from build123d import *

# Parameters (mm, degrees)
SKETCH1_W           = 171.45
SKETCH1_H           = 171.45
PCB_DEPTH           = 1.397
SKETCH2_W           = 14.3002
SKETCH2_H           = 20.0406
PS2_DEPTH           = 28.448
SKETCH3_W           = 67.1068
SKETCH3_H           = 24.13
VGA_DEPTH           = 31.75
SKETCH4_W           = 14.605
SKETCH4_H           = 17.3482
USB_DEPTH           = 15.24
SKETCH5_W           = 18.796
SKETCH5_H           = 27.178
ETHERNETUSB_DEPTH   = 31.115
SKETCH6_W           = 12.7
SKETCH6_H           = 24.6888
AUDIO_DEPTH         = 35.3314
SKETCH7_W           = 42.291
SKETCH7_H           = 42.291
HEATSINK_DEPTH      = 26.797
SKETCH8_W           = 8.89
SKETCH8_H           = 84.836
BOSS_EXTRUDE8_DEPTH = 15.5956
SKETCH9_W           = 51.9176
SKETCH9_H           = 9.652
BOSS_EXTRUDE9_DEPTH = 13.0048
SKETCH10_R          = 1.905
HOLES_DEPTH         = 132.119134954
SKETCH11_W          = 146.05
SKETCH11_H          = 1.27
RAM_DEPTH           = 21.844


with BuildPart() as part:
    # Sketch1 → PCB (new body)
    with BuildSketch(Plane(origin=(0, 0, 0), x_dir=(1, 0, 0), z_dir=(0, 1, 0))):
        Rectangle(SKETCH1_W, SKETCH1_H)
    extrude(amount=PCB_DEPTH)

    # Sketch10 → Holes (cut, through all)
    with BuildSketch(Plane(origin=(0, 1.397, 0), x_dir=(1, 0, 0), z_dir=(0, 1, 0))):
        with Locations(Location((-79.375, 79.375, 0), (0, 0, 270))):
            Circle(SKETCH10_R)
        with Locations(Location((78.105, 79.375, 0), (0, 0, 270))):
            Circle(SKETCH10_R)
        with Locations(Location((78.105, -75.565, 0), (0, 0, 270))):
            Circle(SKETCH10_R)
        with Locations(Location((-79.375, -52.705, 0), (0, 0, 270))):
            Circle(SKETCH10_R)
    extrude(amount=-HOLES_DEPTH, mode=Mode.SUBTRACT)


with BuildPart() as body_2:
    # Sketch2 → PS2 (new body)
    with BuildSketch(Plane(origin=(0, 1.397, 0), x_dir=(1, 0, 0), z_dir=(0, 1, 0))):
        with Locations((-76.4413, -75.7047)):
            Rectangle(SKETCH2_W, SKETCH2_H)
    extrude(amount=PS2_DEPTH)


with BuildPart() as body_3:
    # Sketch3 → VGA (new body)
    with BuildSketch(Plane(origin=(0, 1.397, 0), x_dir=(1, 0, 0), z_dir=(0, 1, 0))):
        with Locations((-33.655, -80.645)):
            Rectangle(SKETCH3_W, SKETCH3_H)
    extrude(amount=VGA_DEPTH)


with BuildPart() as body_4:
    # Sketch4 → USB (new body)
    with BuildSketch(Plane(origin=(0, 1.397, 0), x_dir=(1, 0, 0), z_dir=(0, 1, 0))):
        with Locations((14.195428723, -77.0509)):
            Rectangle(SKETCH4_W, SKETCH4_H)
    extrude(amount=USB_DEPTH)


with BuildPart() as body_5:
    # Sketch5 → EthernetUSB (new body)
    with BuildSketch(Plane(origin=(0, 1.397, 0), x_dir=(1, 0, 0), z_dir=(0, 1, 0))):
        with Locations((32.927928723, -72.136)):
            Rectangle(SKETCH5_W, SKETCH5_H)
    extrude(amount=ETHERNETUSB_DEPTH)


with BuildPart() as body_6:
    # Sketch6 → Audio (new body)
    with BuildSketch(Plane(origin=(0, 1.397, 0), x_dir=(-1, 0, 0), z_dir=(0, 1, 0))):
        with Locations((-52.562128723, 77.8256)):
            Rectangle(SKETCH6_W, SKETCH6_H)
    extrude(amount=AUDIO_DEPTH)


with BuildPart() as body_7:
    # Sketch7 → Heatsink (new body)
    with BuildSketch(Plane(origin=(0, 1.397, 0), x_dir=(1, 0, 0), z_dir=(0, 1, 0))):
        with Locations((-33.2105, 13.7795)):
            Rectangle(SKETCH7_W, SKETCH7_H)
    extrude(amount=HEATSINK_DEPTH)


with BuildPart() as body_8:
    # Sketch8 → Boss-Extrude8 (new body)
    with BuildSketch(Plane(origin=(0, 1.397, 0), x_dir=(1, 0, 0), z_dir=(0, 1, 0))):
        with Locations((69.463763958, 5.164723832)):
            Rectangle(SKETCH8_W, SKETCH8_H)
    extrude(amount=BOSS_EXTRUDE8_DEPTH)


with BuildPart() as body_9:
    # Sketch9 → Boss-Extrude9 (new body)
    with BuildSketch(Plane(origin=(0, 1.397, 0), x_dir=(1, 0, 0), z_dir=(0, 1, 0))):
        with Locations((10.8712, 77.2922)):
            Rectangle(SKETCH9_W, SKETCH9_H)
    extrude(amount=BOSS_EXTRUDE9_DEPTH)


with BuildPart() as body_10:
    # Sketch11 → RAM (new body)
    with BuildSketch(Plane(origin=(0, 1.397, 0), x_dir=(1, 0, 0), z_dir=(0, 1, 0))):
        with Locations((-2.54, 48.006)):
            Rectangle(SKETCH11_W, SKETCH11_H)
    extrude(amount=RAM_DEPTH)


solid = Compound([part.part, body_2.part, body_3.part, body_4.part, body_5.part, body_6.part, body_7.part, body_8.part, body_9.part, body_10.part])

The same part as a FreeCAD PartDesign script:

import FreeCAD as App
import Part
import Sketcher
from FreeCAD import Vector
Q = App.Units.Quantity


def add_polygon(sketch, points):
    """Adds a closed chain of lines whose ends are joined by coincident constraints."""
    first, n = sketch.GeometryCount, len(points)
    for a, b in zip(points, points[1:] + points[:1]):
        sketch.addGeometry(Part.LineSegment(App.Vector(*a, 0), App.Vector(*b, 0)), False)
    for i in range(n):
        sketch.addConstraint(Sketcher.Constraint("Coincident", first + i, 2, first + (i + 1) % n, 1))

doc = App.newDocument("Part")
body = doc.addObject("PartDesign::Body", "Body")

# Sketch on XZ plane
sketch1 = doc.addObject("Sketcher::SketchObject", "Sketch")
body.addObject(sketch1)
sketch1.AttachmentSupport = (doc.XZ_Plane, [""])
sketch1.MapMode = "FlatFace"
add_polygon(sketch1, [(-85.725, -85.725), (-85.725, 85.725), (85.725, 85.725), (85.725, -85.725)])  # lines 0-3
sketch1.addConstraint(Sketcher.Constraint("Vertical", 0))
sketch1.addConstraint(Sketcher.Constraint("Horizontal", 1))
sketch1.addConstraint(Sketcher.Constraint("Vertical", 2))
sketch1.addConstraint(Sketcher.Constraint("Horizontal", 3))
sketch1.addConstraint(Sketcher.Constraint("Symmetric", 0, 2, 2, 2, -1, 1))
sketch1.addConstraint(Sketcher.Constraint("Equal", 3, 0))
sketch1.addConstraint(Sketcher.Constraint("DistanceX", 1, 1, 1, 2, Q("6.75 in")))
pad1 = doc.addObject("PartDesign::Pad", "Pad")
body.addObject(pad1)
pad1.Profile = sketch1
pad1.Length = Q("0.055 in")
pad1.Reversed = True

# Sketch on XZ plane
sketch2 = doc.addObject("Sketcher::SketchObject", "Sketch001")
body.addObject(sketch2)
sketch2.AttachmentSupport = (doc.XZ_Plane, [""])
sketch2.MapMode = "FlatFace"
sketch2.AttachmentOffset = App.Placement(Vector(0, 0, -0.055 * 25.4), App.Rotation())
sketch2.addGeometry(Part.Circle(Vector(-79.375, -79.375, 0), Vector(0, 0, 1), 1.905), False)
sketch2.addGeometry(Part.Circle(Vector(78.105, -79.375, 0), Vector(0, 0, 1), 1.905), False)
sketch2.addGeometry(Part.Circle(Vector(78.105, 75.565, 0), Vector(0, 0, 1), 1.905), False)
sketch2.addGeometry(Part.Circle(Vector(-79.375, 52.705, 0), Vector(0, 0, 1), 1.905), False)
sketch2.addConstraint(Sketcher.Constraint("Equal", 0, 1))
sketch2.addConstraint(Sketcher.Constraint("Equal", 1, 2))
sketch2.addConstraint(Sketcher.Constraint("Equal", 2, 3))
sketch2.addConstraint(Sketcher.Constraint("Horizontal", 0, 3, 1, 3))
sketch2.addConstraint(Sketcher.Constraint("Vertical", 1, 3, 2, 3))
sketch2.addConstraint(Sketcher.Constraint("Vertical", 0, 3, 3, 3))
sketch2.addConstraint(Sketcher.Constraint("Diameter", 0, Q("0.15 in")))
sketch2.addConstraint(Sketcher.Constraint("DistanceX", 0, 3, 1, 3, Q("6.2 in")))
sketch2.addConstraint(Sketcher.Constraint("DistanceY", 1, 3, 2, 3, Q("6.1 in")))
sketch2.addConstraint(Sketcher.Constraint("DistanceY", 0, 3, 3, 3, Q("5.2 in")))
sketch2.addConstraint(Sketcher.Constraint("DistanceX", 0, 3, -1, 1, Q("3.125 in")))
sketch2.addConstraint(Sketcher.Constraint("DistanceY", 0, 3, -1, 1, Q("3.125 in")))
pocket1 = doc.addObject("PartDesign::Pocket", "Pocket")
body.addObject(pocket1)
pocket1.Profile = sketch2
pocket1.Type = "ThroughAll"
pocket1.Reversed = True
body2 = doc.addObject("PartDesign::Body", "Body001")

# Sketch on XZ plane
sketch3 = doc.addObject("Sketcher::SketchObject", "Sketch002")
body2.addObject(sketch3)
sketch3.AttachmentSupport = (doc.getObject("XZ_Plane001"), [""])
sketch3.MapMode = "FlatFace"
sketch3.AttachmentOffset = App.Placement(Vector(0, 0, -0.055 * 25.4), App.Rotation())
add_polygon(sketch3, [(-83.5914, 65.6844), (-83.5914, 85.725), (-69.2912, 85.725), (-69.2912, 65.6844)])  # lines 0-3
sketch3.addConstraint(Sketcher.Constraint("Vertical", 0))
sketch3.addConstraint(Sketcher.Constraint("Horizontal", 1))
sketch3.addConstraint(Sketcher.Constraint("Vertical", 2))
sketch3.addConstraint(Sketcher.Constraint("Horizontal", 3))
sketch3.addConstraint(Sketcher.Constraint("DistanceX", 1, 1, 1, 2, Q("0.563 in")))
sketch3.addConstraint(Sketcher.Constraint("DistanceY", 0, 1, 0, 2, Q("0.789 in")))
sketch3.addConstraint(Sketcher.Constraint("DistanceX", 0, 2, -1, 1, Q("3.291 in")))
sketch3.addConstraint(Sketcher.Constraint("DistanceY", -1, 1, 0, 2, Q("3.375 in")))
pad2 = doc.addObject("PartDesign::Pad", "Pad001")
body2.addObject(pad2)
pad2.Profile = sketch3
pad2.Length = Q("1.12 in")
pad2.Reversed = True
body3 = doc.addObject("PartDesign::Body", "Body002")

# Sketch on XZ plane
sketch4 = doc.addObject("Sketcher::SketchObject", "Sketch003")
body3.addObject(sketch4)
sketch4.AttachmentSupport = (doc.getObject("XZ_Plane002"), [""])
sketch4.MapMode = "FlatFace"
sketch4.AttachmentOffset = App.Placement(Vector(0, 0, -0.055 * 25.4), App.Rotation())
add_polygon(sketch4, [(-67.2084, 68.58), (-67.2084, 92.71), (-0.1016, 92.71), (-0.1016, 68.58)])  # lines 0-3
sketch4.addConstraint(Sketcher.Constraint("Vertical", 0))
sketch4.addConstraint(Sketcher.Constraint("Horizontal", 1))
sketch4.addConstraint(Sketcher.Constraint("Vertical", 2))
sketch4.addConstraint(Sketcher.Constraint("Horizontal", 3))
sketch4.addConstraint(Sketcher.Constraint("DistanceY", 0, 1, 0, 2, Q("0.95 in")))
sketch4.addConstraint(Sketcher.Constraint("DistanceY", -1, 1, 2, 2, Q("2.7 in")))
sketch4.addConstraint(Sketcher.Constraint("DistanceX", 1, 1, 1, 2, Q("2.642 in")))
sketch4.addConstraint(Sketcher.Constraint("DistanceX", 0, 2, -1, 1, Q("2.646 in")))
pad3 = doc.addObject("PartDesign::Pad", "Pad002")
body3.addObject(pad3)
pad3.Profile = sketch4
pad3.Length = Q("1.25 in")
pad3.Reversed = True
body4 = doc.addObject("PartDesign::Body", "Body003")

# Sketch on XZ plane
sketch5 = doc.addObject("Sketcher::SketchObject", "Sketch004")
body4.addObject(sketch5)
sketch5.AttachmentSupport = (doc.getObject("XZ_Plane003"), [""])
sketch5.MapMode = "FlatFace"
sketch5.AttachmentOffset = App.Placement(Vector(0, 0, -0.055 * 25.4), App.Rotation())
add_polygon(sketch5, [(6.892929, 68.3768), (6.892929, 85.725), (21.497929, 85.725), (21.497929, 68.3768)])  # lines 0-3
sketch5.addConstraint(Sketcher.Constraint("Vertical", 0))
sketch5.addConstraint(Sketcher.Constraint("Horizontal", 1))
sketch5.addConstraint(Sketcher.Constraint("Vertical", 2))
sketch5.addConstraint(Sketcher.Constraint("Horizontal", 3))
sketch5.addConstraint(Sketcher.Constraint("DistanceX", 1, 1, 1, 2, Q("0.575 in")))
sketch5.addConstraint(Sketcher.Constraint("DistanceY", 0, 1, 0, 2, Q("0.683 in")))
sketch5.addConstraint(Sketcher.Constraint("DistanceY", -1, 1, 0, 2, Q("3.375 in")))
sketch5.addConstraint(Sketcher.Constraint("DistanceX", -1, 1, 0, 2, 6.892929))
pad4 = doc.addObject("PartDesign::Pad", "Pad003")
body4.addObject(pad4)
pad4.Profile = sketch5
pad4.Length = Q("0.6 in")
pad4.Reversed = True
body5 = doc.addObject("PartDesign::Body", "Body004")

# Sketch on XZ plane
sketch6 = doc.addObject("Sketcher::SketchObject", "Sketch005")
body5.addObject(sketch6)
sketch6.AttachmentSupport = (doc.getObject("XZ_Plane004"), [""])
sketch6.MapMode = "FlatFace"
sketch6.AttachmentOffset = App.Placement(Vector(0, 0, -0.055 * 25.4), App.Rotation())
add_polygon(sketch6, [(23.529929, 58.547), (23.529929, 85.725), (42.325929, 85.725), (42.325929, 58.547)])  # lines 0-3
sketch6.addConstraint(Sketcher.Constraint("Vertical", 0))
sketch6.addConstraint(Sketcher.Constraint("Horizontal", 1))
sketch6.addConstraint(Sketcher.Constraint("Vertical", 2))
sketch6.addConstraint(Sketcher.Constraint("Horizontal", 3))
sketch6.addConstraint(Sketcher.Constraint("DistanceX", 1, 1, 1, 2, Q("0.74 in")))
sketch6.addConstraint(Sketcher.Constraint("DistanceY", 0, 1, 0, 2, Q("1.07 in")))
sketch6.addConstraint(Sketcher.Constraint("DistanceY", -1, 1, 0, 2, Q("3.375 in")))
sketch6.addConstraint(Sketcher.Constraint("DistanceX", -1, 1, 0, 2, 23.529929))
pad5 = doc.addObject("PartDesign::Pad", "Pad004")
body5.addObject(pad5)
pad5.Profile = sketch6
pad5.Length = Q("1.225 in")
pad5.Reversed = True
body6 = doc.addObject("PartDesign::Body", "Body005")

# Sketch on XZ plane
sketch7 = doc.addObject("Sketcher::SketchObject", "Sketch006")
body6.addObject(sketch7)
sketch7.AttachmentSupport = (doc.getObject("XZ_Plane005"), [""])
sketch7.MapMode = "FlatFace"
sketch7.AttachmentOffset = App.Placement(Vector(0, 0, -0.055 * 25.4), App.Rotation())
add_polygon(sketch7, [(58.912129, 90.17), (58.912129, 65.4812), (46.212129, 65.4812), (46.212129, 90.17)])  # lines 0-3
sketch7.addConstraint(Sketcher.Constraint("Vertical", 0))
sketch7.addConstraint(Sketcher.Constraint("Horizontal", 1))
sketch7.addConstraint(Sketcher.Constraint("Vertical", 2))
sketch7.addConstraint(Sketcher.Constraint("Horizontal", 3))
sketch7.addConstraint(Sketcher.Constraint("DistanceX", 1, 2, 1, 1, Q("0.5 in")))
sketch7.addConstraint(Sketcher.Constraint("DistanceY", 0, 2, 0, 1, Q("0.972 in")))
sketch7.addConstraint(Sketcher.Constraint("DistanceY", -1, 1, 2, 2, Q("3.55 in")))
sketch7.addConstraint(Sketcher.Constraint("DistanceX", -1, 1, 0, 2, 58.912129))
pad6 = doc.addObject("PartDesign::Pad", "Pad005")
body6.addObject(pad6)
pad6.Profile = sketch7
pad6.Length = Q("1.391 in")
pad6.Reversed = True
body7 = doc.addObject("PartDesign::Body", "Body006")

# Sketch on XZ plane
sketch8 = doc.addObject("Sketcher::SketchObject", "Sketch007")
body7.addObject(sketch8)
sketch8.AttachmentSupport = (doc.getObject("XZ_Plane006"), [""])
sketch8.MapMode = "FlatFace"
sketch8.AttachmentOffset = App.Placement(Vector(0, 0, -0.055 * 25.4), App.Rotation())
add_polygon(sketch8, [(-54.356, -34.925), (-54.356, 7.366), (-12.065, 7.366), (-12.065, -34.925)])  # lines 0-3
sketch8.addConstraint(Sketcher.Constraint("Vertical", 0))
sketch8.addConstraint(Sketcher.Constraint("Horizontal", 1))
sketch8.addConstraint(Sketcher.Constraint("Vertical", 2))
sketch8.addConstraint(Sketcher.Constraint("Horizontal", 3))
sketch8.addConstraint(Sketcher.Constraint("Equal", 3, 0))
sketch8.addConstraint(Sketcher.Constraint("DistanceX", 1, 1, 1, 2, Q("1.665 in")))
sketch8.addConstraint(Sketcher.Constraint("DistanceX", 0, 2, -1, 1, Q("2.14 in")))
sketch8.addConstraint(Sketcher.Constraint("DistanceY", -1, 1, 0, 2, Q("0.29 in")))
pad7 = doc.addObject("PartDesign::Pad", "Pad006")
body7.addObject(pad7)
pad7.Profile = sketch8
pad7.Length = Q("1.055 in")
pad7.Reversed = True
body8 = doc.addObject("PartDesign::Body", "Body007")

# Sketch on XZ plane
sketch9 = doc.addObject("Sketcher::SketchObject", "Sketch008")
body8.addObject(sketch9)
sketch9.AttachmentSupport = (doc.getObject("XZ_Plane007"), [""])
sketch9.MapMode = "FlatFace"
sketch9.AttachmentOffset = App.Placement(Vector(0, 0, -0.055 * 25.4), App.Rotation())
add_polygon(sketch9, [(65.018764, -47.582724), (65.018764, 37.253276), (73.908764, 37.253276), (73.908764, -47.582724)])  # lines 0-3
sketch9.addConstraint(Sketcher.Constraint("Vertical", 0))
sketch9.addConstraint(Sketcher.Constraint("Horizontal", 1))
sketch9.addConstraint(Sketcher.Constraint("Vertical", 2))
sketch9.addConstraint(Sketcher.Constraint("Horizontal", 3))
sketch9.addConstraint(Sketcher.Constraint("DistanceX", 1, 1, 1, 2, Q("0.35 in")))
sketch9.addConstraint(Sketcher.Constraint("DistanceY", 0, 1, 0, 2, Q("3.34 in")))
sketch9.addConstraint(Sketcher.Constraint("DistanceX", -1, 1, 0, 2, 65.018764))
sketch9.addConstraint(Sketcher.Constraint("DistanceY", -1, 1, 0, 2, 37.253276))
pad8 = doc.addObject("PartDesign::Pad", "Pad007")
body8.addObject(pad8)
pad8.Profile = sketch9
pad8.Length = Q("0.614 in")
pad8.Reversed = True
body9 = doc.addObject("PartDesign::Body", "Body008")

# Sketch on XZ plane
sketch10 = doc.addObject("Sketcher::SketchObject", "Sketch009")
body9.addObject(sketch10)
sketch10.AttachmentSupport = (doc.getObject("XZ_Plane008"), [""])
sketch10.MapMode = "FlatFace"
sketch10.AttachmentOffset = App.Placement(Vector(0, 0, -0.055 * 25.4), App.Rotation())
add_polygon(sketch10, [(-15.0876, -82.1182), (-15.0876, -72.4662), (36.83, -72.4662), (36.83, -82.1182)])  # lines 0-3
sketch10.addConstraint(Sketcher.Constraint("Vertical", 0))
sketch10.addConstraint(Sketcher.Constraint("Horizontal", 1))
sketch10.addConstraint(Sketcher.Constraint("Vertical", 2))
sketch10.addConstraint(Sketcher.Constraint("Horizontal", 3))
sketch10.addConstraint(Sketcher.Constraint("DistanceY", 0, 1, 0, 2, Q("0.38 in")))
sketch10.addConstraint(Sketcher.Constraint("DistanceX", 1, 1, 1, 2, Q("2.044 in")))
sketch10.addConstraint(Sketcher.Constraint("DistanceX", -1, 1, 1, 2, Q("1.45 in")))
sketch10.addConstraint(Sketcher.Constraint("DistanceY", 0, 2, -1, 1, Q("2.853 in")))
pad9 = doc.addObject("PartDesign::Pad", "Pad008")
body9.addObject(pad9)
pad9.Profile = sketch10
pad9.Length = Q("0.512 in")
pad9.Reversed = True
body10 = doc.addObject("PartDesign::Body", "Body009")

# Sketch on XZ plane
sketch11 = doc.addObject("Sketcher::SketchObject", "Sketch010")
body10.addObject(sketch11)
sketch11.AttachmentSupport = (doc.getObject("XZ_Plane009"), [""])
sketch11.MapMode = "FlatFace"
sketch11.AttachmentOffset = App.Placement(Vector(0, 0, -0.055 * 25.4), App.Rotation())
add_polygon(sketch11, [(-75.565, -48.641), (-75.565, -47.371), (70.485, -47.371), (70.485, -48.641)])  # lines 0-3
sketch11.addConstraint(Sketcher.Constraint("Vertical", 0))
sketch11.addConstraint(Sketcher.Constraint("Horizontal", 1))
sketch11.addConstraint(Sketcher.Constraint("Vertical", 2))
sketch11.addConstraint(Sketcher.Constraint("Horizontal", 3))
sketch11.addConstraint(Sketcher.Constraint("DistanceX", 1, 1, 1, 2, Q("5.75 in")))
sketch11.addConstraint(Sketcher.Constraint("DistanceY", 0, 1, 0, 2, Q("0.05 in")))
sketch11.addConstraint(Sketcher.Constraint("DistanceX", 0, 2, -1, 1, Q("2.975 in")))
sketch11.addConstraint(Sketcher.Constraint("DistanceY", 0, 2, -1, 1, Q("1.865 in")))
pad10 = doc.addObject("PartDesign::Pad", "Pad009")
body10.addObject(pad10)
pad10.Profile = sketch11
pad10.Length = Q("0.86 in")
pad10.Reversed = True

doc.recompute()
